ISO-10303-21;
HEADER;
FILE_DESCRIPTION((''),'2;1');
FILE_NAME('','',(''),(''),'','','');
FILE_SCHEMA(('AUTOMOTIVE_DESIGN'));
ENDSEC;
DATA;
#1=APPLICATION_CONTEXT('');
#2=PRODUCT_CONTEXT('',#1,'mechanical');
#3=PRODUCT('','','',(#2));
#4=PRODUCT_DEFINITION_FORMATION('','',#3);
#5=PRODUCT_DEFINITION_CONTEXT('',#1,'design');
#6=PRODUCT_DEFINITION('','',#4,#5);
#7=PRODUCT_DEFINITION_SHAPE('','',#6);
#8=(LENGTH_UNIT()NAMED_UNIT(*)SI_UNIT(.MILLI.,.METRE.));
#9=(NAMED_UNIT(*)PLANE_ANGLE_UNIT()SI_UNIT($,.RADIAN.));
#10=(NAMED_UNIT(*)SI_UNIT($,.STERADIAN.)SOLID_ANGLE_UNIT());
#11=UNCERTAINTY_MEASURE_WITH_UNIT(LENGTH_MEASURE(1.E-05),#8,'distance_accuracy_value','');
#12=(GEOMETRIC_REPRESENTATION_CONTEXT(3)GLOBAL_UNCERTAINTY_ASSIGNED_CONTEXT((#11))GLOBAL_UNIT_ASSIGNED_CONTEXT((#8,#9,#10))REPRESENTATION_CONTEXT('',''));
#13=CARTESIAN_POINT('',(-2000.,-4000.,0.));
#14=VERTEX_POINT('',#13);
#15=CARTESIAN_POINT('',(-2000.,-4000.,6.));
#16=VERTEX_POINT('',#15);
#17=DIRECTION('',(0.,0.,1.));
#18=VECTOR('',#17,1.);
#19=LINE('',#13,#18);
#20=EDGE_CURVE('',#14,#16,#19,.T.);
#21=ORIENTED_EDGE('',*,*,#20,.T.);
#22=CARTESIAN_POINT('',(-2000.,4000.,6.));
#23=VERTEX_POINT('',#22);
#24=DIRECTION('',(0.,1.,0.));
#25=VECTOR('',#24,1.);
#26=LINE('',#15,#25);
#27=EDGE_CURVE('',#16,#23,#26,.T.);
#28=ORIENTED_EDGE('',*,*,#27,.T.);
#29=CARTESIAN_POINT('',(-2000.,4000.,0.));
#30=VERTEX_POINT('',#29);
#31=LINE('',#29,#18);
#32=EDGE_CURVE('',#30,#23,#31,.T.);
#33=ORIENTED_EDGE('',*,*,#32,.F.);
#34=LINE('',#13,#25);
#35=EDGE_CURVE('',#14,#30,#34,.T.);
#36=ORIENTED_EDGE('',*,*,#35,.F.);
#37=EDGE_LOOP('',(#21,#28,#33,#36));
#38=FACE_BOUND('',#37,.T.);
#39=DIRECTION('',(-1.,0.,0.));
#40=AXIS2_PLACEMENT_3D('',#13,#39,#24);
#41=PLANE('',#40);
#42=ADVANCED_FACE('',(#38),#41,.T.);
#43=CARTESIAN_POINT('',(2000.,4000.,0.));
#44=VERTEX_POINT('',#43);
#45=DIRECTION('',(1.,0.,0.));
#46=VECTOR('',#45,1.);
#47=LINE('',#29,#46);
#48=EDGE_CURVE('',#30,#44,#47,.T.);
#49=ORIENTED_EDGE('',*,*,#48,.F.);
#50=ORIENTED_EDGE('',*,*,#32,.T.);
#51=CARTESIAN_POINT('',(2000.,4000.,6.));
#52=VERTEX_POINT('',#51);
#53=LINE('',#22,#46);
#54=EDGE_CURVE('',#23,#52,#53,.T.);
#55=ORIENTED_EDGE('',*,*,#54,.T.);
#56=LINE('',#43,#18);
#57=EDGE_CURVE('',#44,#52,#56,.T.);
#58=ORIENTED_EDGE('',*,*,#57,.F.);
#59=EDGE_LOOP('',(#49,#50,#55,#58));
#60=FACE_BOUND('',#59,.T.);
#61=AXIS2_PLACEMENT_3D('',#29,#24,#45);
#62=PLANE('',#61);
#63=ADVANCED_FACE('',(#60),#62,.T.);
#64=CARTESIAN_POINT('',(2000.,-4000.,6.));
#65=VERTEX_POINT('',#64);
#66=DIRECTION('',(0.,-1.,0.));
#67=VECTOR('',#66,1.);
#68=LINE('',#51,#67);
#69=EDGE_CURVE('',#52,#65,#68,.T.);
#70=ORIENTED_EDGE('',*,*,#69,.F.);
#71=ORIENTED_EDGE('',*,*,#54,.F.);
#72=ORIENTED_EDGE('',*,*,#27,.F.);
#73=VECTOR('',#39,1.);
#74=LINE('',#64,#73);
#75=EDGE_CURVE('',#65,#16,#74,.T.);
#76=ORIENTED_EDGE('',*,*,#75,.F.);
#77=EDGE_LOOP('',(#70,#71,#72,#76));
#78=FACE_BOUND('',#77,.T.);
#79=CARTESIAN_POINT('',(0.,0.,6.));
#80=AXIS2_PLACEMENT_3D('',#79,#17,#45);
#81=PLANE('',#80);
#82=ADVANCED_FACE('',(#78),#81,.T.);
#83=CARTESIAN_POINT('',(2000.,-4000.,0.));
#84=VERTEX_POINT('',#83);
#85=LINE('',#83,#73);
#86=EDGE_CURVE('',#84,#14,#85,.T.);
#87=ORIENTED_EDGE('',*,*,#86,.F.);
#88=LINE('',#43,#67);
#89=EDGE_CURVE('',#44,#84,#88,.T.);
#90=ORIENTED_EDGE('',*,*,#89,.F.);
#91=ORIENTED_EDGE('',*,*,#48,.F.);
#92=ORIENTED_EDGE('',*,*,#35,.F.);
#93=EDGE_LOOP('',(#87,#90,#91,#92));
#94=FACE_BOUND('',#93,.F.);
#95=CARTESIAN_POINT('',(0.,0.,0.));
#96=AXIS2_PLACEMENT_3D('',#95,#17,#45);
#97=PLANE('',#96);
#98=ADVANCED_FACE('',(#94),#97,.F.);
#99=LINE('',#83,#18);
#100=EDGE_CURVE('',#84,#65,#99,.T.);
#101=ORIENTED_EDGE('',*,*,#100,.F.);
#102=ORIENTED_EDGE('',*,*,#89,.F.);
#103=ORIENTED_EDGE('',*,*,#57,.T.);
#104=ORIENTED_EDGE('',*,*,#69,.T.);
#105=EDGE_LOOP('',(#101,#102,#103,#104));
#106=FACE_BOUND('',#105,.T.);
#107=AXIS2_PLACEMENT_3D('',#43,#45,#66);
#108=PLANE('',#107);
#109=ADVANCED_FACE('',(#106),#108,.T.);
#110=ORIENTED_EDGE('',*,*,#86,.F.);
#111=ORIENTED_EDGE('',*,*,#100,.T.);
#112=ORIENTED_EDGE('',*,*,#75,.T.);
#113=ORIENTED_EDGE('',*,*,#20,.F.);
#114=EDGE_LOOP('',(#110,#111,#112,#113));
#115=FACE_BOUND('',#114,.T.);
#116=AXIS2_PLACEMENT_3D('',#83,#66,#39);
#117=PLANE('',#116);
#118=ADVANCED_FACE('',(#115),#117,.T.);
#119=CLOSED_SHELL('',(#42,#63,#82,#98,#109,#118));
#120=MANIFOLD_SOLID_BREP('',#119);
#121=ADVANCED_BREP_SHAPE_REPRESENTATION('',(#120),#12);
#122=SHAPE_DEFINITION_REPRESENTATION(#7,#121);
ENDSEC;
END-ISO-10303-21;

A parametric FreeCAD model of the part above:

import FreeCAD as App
import Part
import Sketcher


def add_polygon(sketch, points):
    """Adds a closed chain of lines whose ends are joined by coincident constraints."""
    first, n = sketch.GeometryCount, len(points)
    for a, b in zip(points, points[1:] + points[:1]):
        sketch.addGeometry(Part.LineSegment(App.Vector(*a, 0), App.Vector(*b, 0)), False)
    for i in range(n):
        sketch.addConstraint(Sketcher.Constraint("Coincident", first + i, 2, first + (i + 1) % n, 1))

doc = App.newDocument("Part")
body = doc.addObject("PartDesign::Body", "Body")

sketch1 = body.newObject("Sketcher::SketchObject", "Sketch")
sketch1.AttachmentSupport = (doc.getObject("XY_Plane"), [""])
sketch1.MapMode = "FlatFace"
add_polygon(sketch1, [(-2000, -4000), (2000, -4000), (2000, 4000), (-2000, 4000)])
sketch1.addConstraint([
    Sketcher.Constraint("Horizontal", 0),
    Sketcher.Constraint("Vertical", 1),
    Sketcher.Constraint("Horizontal", 2),
    Sketcher.Constraint("Vertical", 3),
    Sketcher.Constraint("Symmetric", 0, 2, 2, 2, -1, 1),
    Sketcher.Constraint("DistanceX", 0, 1, 0, 2, 4000.0),
    Sketcher.Constraint("DistanceY", 1, 1, 1, 2, 8000.0),
])
pad1 = body.newObject("PartDesign::Pad", "Pad")
pad1.Profile = sketch1
pad1.Length = 6

doc.recompute()
